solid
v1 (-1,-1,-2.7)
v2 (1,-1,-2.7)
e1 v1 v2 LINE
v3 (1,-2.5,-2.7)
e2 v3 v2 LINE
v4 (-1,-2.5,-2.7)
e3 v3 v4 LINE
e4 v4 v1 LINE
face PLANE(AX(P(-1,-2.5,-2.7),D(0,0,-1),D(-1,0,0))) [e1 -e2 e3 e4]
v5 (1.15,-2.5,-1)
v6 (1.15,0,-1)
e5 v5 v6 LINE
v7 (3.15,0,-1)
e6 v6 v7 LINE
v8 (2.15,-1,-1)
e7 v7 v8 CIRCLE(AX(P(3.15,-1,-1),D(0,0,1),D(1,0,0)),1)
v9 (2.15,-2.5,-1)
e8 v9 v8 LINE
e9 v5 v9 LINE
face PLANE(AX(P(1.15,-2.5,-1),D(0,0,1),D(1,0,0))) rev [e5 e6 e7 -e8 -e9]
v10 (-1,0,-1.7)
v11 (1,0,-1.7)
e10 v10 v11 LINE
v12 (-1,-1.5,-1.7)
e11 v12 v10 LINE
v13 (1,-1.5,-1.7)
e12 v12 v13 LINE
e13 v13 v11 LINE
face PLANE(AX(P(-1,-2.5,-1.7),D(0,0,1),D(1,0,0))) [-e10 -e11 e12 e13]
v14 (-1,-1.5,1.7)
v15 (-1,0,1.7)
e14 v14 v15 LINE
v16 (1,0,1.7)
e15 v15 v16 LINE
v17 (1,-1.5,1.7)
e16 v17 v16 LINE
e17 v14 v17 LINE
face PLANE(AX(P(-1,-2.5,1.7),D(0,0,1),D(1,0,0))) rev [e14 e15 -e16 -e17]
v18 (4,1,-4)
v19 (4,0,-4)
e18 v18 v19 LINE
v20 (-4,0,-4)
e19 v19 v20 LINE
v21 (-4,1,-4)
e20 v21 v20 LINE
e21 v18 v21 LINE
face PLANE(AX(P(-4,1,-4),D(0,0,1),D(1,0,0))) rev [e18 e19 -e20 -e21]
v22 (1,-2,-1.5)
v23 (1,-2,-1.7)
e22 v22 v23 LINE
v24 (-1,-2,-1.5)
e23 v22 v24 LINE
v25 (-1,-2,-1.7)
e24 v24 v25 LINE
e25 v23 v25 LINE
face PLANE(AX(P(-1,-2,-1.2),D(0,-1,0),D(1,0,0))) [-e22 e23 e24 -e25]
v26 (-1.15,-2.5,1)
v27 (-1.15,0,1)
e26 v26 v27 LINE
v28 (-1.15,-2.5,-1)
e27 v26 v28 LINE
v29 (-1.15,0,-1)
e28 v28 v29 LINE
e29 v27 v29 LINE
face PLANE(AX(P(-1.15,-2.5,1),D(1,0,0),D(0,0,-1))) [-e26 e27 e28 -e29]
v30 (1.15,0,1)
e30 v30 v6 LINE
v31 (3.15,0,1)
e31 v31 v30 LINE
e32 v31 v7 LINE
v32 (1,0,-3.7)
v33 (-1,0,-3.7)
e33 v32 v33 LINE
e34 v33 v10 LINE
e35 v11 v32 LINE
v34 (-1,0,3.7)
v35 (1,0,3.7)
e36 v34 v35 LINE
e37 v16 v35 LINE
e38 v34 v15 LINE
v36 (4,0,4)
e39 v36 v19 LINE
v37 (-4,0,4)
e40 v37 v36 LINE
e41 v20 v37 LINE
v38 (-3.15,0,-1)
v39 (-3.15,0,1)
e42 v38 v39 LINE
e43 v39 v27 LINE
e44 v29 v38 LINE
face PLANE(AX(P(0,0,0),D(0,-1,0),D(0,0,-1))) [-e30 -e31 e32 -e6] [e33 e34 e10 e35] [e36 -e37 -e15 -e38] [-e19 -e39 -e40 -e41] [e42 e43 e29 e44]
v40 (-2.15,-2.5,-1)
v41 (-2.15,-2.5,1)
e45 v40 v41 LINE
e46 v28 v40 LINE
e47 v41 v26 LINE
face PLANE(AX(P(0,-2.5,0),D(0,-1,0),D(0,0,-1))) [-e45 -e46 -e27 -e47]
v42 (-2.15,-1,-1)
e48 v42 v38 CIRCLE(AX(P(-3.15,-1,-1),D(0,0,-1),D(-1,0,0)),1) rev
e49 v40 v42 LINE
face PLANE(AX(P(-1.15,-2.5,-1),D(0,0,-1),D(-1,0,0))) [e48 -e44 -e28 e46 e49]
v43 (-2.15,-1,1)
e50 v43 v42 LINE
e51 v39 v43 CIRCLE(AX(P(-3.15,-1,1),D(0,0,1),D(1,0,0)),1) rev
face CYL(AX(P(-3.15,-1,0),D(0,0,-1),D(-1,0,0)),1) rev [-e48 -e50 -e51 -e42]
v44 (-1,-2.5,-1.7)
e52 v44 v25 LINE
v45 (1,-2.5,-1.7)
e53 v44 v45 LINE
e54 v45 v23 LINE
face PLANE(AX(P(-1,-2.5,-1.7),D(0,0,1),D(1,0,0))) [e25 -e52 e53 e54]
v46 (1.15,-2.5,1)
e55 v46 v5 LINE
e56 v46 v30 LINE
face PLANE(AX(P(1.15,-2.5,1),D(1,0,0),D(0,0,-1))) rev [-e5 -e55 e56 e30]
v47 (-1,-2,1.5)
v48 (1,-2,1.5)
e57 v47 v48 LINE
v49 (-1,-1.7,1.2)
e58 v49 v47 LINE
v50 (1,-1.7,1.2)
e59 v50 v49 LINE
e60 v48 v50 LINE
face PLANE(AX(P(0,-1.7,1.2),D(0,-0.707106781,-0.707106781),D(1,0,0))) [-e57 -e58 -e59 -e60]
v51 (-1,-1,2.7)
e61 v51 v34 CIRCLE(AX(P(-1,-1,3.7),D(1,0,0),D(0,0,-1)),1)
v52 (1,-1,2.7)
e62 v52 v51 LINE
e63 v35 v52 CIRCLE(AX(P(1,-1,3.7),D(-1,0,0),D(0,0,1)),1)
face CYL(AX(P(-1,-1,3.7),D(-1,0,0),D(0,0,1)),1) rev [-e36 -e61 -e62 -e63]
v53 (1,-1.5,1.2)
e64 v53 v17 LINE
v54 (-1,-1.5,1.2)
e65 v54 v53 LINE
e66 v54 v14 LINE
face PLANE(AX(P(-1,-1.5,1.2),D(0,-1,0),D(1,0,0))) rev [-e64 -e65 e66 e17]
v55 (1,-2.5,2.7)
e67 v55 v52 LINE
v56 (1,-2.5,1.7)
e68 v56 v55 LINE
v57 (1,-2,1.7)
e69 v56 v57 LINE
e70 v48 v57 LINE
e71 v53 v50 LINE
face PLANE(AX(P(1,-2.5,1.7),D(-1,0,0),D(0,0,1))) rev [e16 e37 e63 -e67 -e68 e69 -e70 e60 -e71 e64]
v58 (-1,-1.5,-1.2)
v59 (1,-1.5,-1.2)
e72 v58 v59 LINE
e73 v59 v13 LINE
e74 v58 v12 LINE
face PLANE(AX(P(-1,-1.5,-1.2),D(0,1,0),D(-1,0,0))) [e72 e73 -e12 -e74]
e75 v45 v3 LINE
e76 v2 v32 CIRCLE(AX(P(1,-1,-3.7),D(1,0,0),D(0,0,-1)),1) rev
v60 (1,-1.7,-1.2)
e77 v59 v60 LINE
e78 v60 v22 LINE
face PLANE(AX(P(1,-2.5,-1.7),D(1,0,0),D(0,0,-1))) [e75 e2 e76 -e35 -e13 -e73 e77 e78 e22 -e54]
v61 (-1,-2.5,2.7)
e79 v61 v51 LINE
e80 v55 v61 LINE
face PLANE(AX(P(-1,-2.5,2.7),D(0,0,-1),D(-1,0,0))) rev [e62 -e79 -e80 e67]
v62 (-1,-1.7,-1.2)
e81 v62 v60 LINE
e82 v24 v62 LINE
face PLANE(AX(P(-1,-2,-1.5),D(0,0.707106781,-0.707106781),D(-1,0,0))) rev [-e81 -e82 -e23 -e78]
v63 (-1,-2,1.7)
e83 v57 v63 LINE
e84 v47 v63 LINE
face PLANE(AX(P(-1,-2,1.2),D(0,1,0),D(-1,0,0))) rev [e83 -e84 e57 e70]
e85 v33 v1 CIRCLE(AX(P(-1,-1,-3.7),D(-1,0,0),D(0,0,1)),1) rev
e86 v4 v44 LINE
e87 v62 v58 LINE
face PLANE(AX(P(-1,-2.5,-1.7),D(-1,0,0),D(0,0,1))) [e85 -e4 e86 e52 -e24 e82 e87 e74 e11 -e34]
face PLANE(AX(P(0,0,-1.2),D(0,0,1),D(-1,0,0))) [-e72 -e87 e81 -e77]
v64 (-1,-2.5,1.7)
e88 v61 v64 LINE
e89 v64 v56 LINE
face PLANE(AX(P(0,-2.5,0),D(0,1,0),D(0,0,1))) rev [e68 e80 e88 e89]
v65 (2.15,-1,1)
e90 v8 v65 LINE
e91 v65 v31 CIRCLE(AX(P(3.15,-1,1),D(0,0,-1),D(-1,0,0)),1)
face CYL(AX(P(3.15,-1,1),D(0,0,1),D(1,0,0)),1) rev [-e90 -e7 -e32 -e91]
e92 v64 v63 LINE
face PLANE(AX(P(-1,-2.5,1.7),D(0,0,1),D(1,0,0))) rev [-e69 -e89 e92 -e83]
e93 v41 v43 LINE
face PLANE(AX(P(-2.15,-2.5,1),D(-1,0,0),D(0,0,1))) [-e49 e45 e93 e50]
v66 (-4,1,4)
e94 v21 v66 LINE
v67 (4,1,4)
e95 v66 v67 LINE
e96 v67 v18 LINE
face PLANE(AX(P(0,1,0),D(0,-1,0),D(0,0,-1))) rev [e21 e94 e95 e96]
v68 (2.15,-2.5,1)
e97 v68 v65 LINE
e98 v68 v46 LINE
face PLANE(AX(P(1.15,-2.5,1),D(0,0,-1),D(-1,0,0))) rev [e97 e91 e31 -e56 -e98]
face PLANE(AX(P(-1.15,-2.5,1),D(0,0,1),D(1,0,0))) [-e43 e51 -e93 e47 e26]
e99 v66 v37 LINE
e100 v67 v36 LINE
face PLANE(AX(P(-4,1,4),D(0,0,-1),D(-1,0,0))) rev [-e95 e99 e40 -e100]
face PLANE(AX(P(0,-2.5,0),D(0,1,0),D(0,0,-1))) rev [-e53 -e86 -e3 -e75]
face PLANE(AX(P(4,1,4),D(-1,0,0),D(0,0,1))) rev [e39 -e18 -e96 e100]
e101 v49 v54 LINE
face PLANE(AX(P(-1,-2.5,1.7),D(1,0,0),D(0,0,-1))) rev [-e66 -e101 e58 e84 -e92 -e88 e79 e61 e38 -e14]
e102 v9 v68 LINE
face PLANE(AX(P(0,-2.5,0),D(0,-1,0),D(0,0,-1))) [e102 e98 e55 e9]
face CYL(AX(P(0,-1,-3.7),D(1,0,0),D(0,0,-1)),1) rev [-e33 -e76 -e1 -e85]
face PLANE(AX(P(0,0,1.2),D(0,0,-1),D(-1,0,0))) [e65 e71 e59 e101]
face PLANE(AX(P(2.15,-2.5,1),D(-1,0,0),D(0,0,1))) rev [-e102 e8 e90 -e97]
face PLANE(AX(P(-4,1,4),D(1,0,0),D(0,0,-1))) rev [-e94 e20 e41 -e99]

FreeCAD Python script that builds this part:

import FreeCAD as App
import Part
import Sketcher

V = App.Vector


def edges_at(feature, points):
    """Names of the edges that pass closest to the given points."""
    edges = feature.Shape.Edges
    near = lambda p: min(range(len(edges)), key=lambda i: edges[i].distToShape(Part.Vertex(*p))[0])
    return sorted({f"Edge{near(p) + 1}" for p in points})

doc = App.newDocument("Part")
body = doc.addObject("PartDesign::Body", "Body")

# Sketch on XZ plane
sketch1 = doc.addObject("Sketcher::SketchObject", "Sketch")
body.addObject(sketch1)
sketch1.AttachmentSupport = (doc.XZ_Plane, [""])
sketch1.MapMode = "FlatFace"
sketch1.addGeometry([
    Part.LineSegment(V(-4, -4, 0), V(-4, 4, 0)),
    Part.LineSegment(V(-4, 4, 0), V(4, 4, 0)),
    Part.LineSegment(V(4, 4, 0), V(4, -4, 0)),
    Part.LineSegment(V(4, -4, 0), V(-4, -4, 0)),
], False)
sketch1.addConstraint([
    Sketcher.Constraint("Coincident", 0, 2, 1, 1),
    Sketcher.Constraint("Coincident", 1, 2, 2, 1),
    Sketcher.Constraint("Coincident", 2, 2, 3, 1),
    Sketcher.Constraint("Coincident", 3, 2, 0, 1),
    Sketcher.Constraint("Vertical", 0),
    Sketcher.Constraint("Horizontal", 1),
    Sketcher.Constraint("Vertical", 2),
    Sketcher.Constraint("Horizontal", 3),
    Sketcher.Constraint("Symmetric", 0, 2, 2, 2, -1, 1),
    Sketcher.Constraint("Equal", 3, 0),
    Sketcher.Constraint("DistanceX", 1, 1, 1, 2, 8.0),
])
pad1 = doc.addObject("PartDesign::Pad", "Pad")
body.addObject(pad1)
pad1.Profile = sketch1
pad1.Length = 1
pad1.Reversed = True

# Sketch on XZ plane
sketch2 = doc.addObject("Sketcher::SketchObject", "Sketch001")
body.addObject(sketch2)
sketch2.AttachmentSupport = (doc.XZ_Plane, [""])
sketch2.MapMode = "FlatFace"
sketch2.addGeometry([
    Part.LineSegment(V(-1, 2.7, 0), V(-1, 1.7, 0)),  # 0
    Part.LineSegment(V(-1, 1.7, 0), V(1, 1.7, 0)),  # 1
    Part.LineSegment(V(1, 1.7, 0), V(1, 2.7, 0)),  # 2
    Part.LineSegment(V(1, 2.7, 0), V(-1, 2.7, 0)),  # 3
    Part.LineSegment(V(1.1, 1, 0), V(1.1, -1, 0)),  # 4
    Part.LineSegment(V(1.1, -1, 0), V(2.1, -1, 0)),  # 5
    Part.LineSegment(V(2.1, -1, 0), V(2.1, 1, 0)),  # 6
    Part.LineSegment(V(2.1, 1, 0), V(1.1, 1, 0)),  # 7
], False)
sketch2.addConstraint([
    Sketcher.Constraint("Coincident", 0, 2, 1, 1),
    Sketcher.Constraint("Coincident", 1, 2, 2, 1),
    Sketcher.Constraint("Coincident", 2, 2, 3, 1),
    Sketcher.Constraint("Coincident", 3, 2, 0, 1),
    Sketcher.Constraint("Coincident", 4, 2, 5, 1),
    Sketcher.Constraint("Coincident", 5, 2, 6, 1),
    Sketcher.Constraint("Coincident", 6, 2, 7, 1),
    Sketcher.Constraint("Coincident", 7, 2, 4, 1),
    Sketcher.Constraint("Vertical", 0),
    Sketcher.Constraint("Horizontal", 1),
    Sketcher.Constraint("Vertical", 2),
    Sketcher.Constraint("Horizontal", 3),
    Sketcher.Constraint("Vertical", 4),
    Sketcher.Constraint("Horizontal", 5),
    Sketcher.Constraint("Vertical", 6),
    Sketcher.Constraint("Horizontal", 7),
    Sketcher.Constraint("Equal", 7, 0),
    Sketcher.Constraint("Equal", 3, 4),
    Sketcher.Constraint("DistanceX", 1, 1, 1, 2, 2.0),
    Sketcher.Constraint("DistanceX", 5, 1, 5, 2, 1.0),
    Sketcher.Constraint("DistanceX", 0, 2, -1, 1, 1.0),
    Sketcher.Constraint("DistanceY", 4, 2, -1, 1, 1.0),
    Sketcher.Constraint("DistanceY", -1, 1, 0, 2, 1.7),
    Sketcher.Constraint("DistanceX", -1, 1, 4, 2, 1.15),
])
pad2 = doc.addObject("PartDesign::Pad", "Pad001")
body.addObject(pad2)
pad2.Profile = sketch2
pad2.Length = 2.5

# Sketch on XY plane
sketch3 = doc.addObject("Sketcher::SketchObject", "Sketch002")
body.addObject(sketch3)
sketch3.AttachmentSupport = (doc.XY_Plane, [""])
sketch3.MapMode = "FlatFace"
sketch3.AttachmentOffset = App.Placement(V(0, 0, 1.7), App.Rotation())
sketch3.addGeometry([
    Part.LineSegment(V(1, -1.5, 0), V(1, -2, 0)),
    Part.LineSegment(V(1, -2, 0), V(-1, -2, 0)),
    Part.LineSegment(V(-1, -2, 0), V(-1, -1.5, 0)),
    Part.LineSegment(V(-1, -1.5, 0), V(1, -1.5, 0)),
], False)
sketch3.addConstraint([
    Sketcher.Constraint("Coincident", 0, 2, 1, 1),
    Sketcher.Constraint("Coincident", 1, 2, 2, 1),
    Sketcher.Constraint("Coincident", 2, 2, 3, 1),
    Sketcher.Constraint("Coincident", 3, 2, 0, 1),
    Sketcher.Constraint("Vertical", 0),
    Sketcher.Constraint("Horizontal", 1),
    Sketcher.Constraint("Vertical", 2),
    Sketcher.Constraint("Horizontal", 3),
    Sketcher.Constraint("DistanceX", 1, 2, 1, 1, 2.0),
    Sketcher.Constraint("DistanceY", 0, 2, 0, 1, 0.5),
    Sketcher.Constraint("DistanceX", -1, 1, 0, 2, 1.0),
    Sketcher.Constraint("DistanceY", 0, 2, -1, 1, 2.0),
])
pad3 = doc.addObject("PartDesign::Pad", "Pad002")
body.addObject(pad3)
pad3.Profile = sketch3
pad3.Length = 0.5
pad3.Reversed = True
doc.recompute()

chamfer = doc.addObject("PartDesign::Chamfer", "Chamfer")
body.addObject(chamfer)
chamfer.Base = (pad3, edges_at(pad3, [(0, -2, 1.2)]))
chamfer.Size = 0.3
doc.recompute()

mirrored = doc.addObject("PartDesign::Mirrored", "Mirrored")
body.addObject(mirrored)
mirrored.Originals = [pad2]
mirrored.MirrorPlane = (doc.YZ_Plane, [""])
body.Tip = mirrored
doc.recompute()

mirrored2 = doc.addObject("PartDesign::Mirrored", "Mirrored001")
body.addObject(mirrored2)
mirrored2.Originals = [pad2, pad3]
mirrored2.MirrorPlane = (doc.XY_Plane, [""])
body.Tip = mirrored2
doc.recompute()

chamfer2 = doc.addObject("PartDesign::Chamfer", "Chamfer001")
body.addObject(chamfer2)
chamfer2.Base = (mirrored2, edges_at(mirrored2, [(0, -2, -1.2)]))
chamfer2.Size = 0.3
doc.recompute()

fillet = doc.addObject("PartDesign::Fillet", "Fillet")
body.addObject(fillet)
fillet.Base = (chamfer2, edges_at(chamfer2, [
    (0, 0, 2.7),
    (2.15, 0, 0),
    (-2.15, 0, 0),
    (0, 0, -2.7),
]))
fillet.Radius = 1

doc.recompute()
